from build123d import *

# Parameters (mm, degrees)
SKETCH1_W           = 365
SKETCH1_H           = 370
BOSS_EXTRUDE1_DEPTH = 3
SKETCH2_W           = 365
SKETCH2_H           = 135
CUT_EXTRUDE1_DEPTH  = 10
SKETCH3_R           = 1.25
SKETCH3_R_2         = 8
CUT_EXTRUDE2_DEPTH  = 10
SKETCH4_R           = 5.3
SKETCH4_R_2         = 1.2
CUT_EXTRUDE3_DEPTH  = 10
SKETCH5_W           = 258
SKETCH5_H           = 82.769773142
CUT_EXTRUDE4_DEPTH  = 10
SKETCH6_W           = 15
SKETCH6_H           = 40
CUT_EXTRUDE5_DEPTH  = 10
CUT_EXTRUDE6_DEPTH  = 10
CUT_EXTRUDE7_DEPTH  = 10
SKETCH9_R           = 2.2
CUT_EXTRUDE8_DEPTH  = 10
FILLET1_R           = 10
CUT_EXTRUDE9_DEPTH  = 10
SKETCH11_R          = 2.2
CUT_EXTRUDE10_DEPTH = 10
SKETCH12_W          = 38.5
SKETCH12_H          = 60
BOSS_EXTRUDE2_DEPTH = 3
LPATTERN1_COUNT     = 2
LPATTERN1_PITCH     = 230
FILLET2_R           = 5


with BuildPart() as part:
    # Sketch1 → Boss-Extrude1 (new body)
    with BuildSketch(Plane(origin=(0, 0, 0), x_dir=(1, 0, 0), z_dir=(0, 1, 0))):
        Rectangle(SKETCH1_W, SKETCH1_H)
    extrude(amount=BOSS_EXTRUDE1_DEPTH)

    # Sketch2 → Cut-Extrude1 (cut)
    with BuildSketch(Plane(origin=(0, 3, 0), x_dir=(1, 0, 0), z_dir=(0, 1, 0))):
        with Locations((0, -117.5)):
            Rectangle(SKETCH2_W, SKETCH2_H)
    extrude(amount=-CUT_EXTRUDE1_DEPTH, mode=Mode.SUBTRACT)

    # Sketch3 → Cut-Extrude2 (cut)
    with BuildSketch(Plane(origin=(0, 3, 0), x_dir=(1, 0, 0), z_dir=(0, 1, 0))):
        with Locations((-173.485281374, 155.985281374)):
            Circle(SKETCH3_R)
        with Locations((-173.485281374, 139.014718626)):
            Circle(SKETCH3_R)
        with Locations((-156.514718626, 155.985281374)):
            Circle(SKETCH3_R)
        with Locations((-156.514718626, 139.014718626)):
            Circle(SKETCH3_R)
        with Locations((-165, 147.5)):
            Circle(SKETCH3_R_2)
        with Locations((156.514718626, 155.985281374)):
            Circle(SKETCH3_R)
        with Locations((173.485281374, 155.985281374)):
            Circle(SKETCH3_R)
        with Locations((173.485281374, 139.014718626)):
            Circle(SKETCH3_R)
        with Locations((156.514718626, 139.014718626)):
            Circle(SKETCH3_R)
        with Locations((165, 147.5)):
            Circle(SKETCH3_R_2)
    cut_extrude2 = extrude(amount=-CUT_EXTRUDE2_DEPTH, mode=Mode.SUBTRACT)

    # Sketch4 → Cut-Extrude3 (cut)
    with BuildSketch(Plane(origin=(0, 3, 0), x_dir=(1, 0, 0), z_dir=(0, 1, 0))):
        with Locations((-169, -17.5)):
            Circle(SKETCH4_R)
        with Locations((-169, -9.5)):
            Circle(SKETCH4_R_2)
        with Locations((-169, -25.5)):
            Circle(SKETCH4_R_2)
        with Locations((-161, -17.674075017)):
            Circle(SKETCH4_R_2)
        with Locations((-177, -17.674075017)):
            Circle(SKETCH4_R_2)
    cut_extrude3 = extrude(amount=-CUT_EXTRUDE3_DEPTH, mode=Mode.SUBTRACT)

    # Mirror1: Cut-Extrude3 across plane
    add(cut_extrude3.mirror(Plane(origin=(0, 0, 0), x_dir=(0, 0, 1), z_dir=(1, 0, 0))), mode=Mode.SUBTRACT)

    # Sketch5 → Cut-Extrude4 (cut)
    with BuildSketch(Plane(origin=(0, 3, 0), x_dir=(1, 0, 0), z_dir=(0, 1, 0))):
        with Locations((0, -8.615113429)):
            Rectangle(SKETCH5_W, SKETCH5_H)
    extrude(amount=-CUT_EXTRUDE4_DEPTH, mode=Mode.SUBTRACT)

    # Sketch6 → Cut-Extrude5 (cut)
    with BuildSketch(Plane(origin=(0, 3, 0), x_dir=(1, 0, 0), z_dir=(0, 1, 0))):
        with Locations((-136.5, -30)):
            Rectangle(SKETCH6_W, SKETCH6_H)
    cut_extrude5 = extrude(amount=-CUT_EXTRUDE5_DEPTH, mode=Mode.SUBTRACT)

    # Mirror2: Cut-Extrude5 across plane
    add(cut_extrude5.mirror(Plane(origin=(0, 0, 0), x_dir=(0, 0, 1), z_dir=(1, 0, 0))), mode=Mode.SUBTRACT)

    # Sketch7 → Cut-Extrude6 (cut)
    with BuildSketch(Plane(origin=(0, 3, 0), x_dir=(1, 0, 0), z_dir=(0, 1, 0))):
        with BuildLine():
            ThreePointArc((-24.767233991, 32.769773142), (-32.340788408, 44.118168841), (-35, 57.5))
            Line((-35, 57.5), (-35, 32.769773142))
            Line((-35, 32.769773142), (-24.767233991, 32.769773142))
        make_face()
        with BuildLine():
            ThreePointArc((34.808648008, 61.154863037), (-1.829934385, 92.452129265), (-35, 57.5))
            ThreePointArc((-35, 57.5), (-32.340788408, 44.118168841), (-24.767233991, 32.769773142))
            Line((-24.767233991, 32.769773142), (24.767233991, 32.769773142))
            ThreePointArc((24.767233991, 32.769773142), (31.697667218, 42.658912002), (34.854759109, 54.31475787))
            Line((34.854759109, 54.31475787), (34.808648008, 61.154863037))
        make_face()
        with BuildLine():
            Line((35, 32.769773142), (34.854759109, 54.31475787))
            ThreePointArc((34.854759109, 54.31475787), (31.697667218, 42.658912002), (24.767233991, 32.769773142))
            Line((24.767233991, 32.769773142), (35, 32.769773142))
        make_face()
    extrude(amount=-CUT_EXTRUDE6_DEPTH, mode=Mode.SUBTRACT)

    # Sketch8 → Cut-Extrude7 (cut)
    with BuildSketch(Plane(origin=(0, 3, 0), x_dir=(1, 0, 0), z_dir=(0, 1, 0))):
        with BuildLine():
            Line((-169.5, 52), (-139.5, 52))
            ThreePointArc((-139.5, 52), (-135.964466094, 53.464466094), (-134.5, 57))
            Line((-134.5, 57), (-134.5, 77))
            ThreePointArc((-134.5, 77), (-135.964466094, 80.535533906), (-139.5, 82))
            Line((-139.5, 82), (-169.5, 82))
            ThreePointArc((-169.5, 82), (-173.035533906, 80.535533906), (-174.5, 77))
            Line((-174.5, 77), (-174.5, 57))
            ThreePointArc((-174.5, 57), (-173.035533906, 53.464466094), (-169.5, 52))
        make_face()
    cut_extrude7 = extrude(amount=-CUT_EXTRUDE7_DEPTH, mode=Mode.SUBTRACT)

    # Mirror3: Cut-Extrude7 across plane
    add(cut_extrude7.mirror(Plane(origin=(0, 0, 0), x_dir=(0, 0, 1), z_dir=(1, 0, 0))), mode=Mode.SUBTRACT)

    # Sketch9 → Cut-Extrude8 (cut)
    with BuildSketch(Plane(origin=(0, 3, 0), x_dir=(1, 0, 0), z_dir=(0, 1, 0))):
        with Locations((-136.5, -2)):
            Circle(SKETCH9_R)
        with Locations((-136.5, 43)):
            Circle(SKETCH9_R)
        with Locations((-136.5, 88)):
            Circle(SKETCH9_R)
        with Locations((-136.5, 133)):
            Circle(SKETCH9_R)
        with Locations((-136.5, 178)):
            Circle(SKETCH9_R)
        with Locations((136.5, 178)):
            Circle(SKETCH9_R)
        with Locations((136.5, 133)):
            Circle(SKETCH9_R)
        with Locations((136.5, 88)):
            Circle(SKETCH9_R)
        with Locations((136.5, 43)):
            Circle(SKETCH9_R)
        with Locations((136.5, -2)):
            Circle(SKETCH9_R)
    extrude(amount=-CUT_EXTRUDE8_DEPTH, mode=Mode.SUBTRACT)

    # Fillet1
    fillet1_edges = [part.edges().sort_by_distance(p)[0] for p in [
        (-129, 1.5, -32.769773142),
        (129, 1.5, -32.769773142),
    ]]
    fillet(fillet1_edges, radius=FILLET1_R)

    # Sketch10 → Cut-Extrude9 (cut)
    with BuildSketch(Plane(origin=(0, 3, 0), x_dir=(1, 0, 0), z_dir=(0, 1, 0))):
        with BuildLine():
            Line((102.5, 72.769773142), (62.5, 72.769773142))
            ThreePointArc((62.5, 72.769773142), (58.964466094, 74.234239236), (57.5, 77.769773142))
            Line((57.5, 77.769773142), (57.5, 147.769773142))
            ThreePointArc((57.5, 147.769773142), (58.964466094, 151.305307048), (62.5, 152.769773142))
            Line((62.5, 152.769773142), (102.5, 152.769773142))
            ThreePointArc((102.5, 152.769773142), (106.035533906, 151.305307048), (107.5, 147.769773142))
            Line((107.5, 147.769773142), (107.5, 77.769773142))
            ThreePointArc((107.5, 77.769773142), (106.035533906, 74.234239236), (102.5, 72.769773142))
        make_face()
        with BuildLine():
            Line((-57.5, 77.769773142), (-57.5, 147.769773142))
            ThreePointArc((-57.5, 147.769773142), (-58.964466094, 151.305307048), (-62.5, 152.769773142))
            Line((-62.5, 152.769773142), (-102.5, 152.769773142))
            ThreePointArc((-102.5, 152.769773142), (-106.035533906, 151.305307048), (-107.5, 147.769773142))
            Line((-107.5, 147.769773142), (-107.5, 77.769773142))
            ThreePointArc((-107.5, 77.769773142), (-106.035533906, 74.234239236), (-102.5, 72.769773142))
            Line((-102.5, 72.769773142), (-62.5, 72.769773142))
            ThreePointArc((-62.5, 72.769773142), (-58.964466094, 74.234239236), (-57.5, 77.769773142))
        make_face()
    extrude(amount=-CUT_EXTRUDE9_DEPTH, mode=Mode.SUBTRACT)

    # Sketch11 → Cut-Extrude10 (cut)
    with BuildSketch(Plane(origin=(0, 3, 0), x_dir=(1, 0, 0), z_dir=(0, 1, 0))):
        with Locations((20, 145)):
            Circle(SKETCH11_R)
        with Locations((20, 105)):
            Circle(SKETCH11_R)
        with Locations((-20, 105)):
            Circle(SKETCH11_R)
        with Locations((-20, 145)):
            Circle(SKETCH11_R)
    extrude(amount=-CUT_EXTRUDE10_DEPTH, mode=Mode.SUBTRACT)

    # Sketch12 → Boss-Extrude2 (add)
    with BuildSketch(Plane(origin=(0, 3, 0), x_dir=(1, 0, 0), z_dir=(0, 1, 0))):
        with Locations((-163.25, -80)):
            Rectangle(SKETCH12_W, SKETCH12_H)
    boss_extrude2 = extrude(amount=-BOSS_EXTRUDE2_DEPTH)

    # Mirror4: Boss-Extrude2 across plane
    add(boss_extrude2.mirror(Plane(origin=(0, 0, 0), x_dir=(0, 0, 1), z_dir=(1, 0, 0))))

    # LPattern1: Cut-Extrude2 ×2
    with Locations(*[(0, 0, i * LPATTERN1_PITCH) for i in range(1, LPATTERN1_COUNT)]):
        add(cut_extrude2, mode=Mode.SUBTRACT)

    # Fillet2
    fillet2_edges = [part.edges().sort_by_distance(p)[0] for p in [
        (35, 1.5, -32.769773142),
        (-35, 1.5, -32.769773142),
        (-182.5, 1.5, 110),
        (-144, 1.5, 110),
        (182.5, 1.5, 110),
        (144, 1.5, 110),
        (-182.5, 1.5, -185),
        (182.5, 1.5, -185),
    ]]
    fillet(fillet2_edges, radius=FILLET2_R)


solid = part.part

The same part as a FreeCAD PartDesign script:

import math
import FreeCAD as App
import Part
import Sketcher
Q = App.Units.Quantity


def edges_at(feature, points):
    """Names of the edges that pass closest to the given points."""
    edges = feature.Shape.Edges
    near = lambda p: min(range(len(edges)), key=lambda i: edges[i].distToShape(Part.Vertex(*p))[0])
    return sorted({f"Edge{near(p) + 1}" for p in points})


def add_polygon(sketch, points):
    """Adds a closed chain of lines whose ends are joined by coincident constraints."""
    first, n = sketch.GeometryCount, len(points)
    for a, b in zip(points, points[1:] + points[:1]):
        sketch.addGeometry(Part.LineSegment(App.Vector(*a, 0), App.Vector(*b, 0)), False)
    for i in range(n):
        sketch.addConstraint(Sketcher.Constraint("Coincident", first + i, 2, first + (i + 1) % n, 1))

doc = App.newDocument("Part")
body = doc.addObject("PartDesign::Body", "Body")

# Sketch on XZ plane
sketch1 = body.newObject("Sketcher::SketchObject", "Sketch")
sketch1.AttachmentSupport = (doc.getObject("XZ_Plane"), [""])
sketch1.MapMode = "FlatFace"
add_polygon(sketch1, [(-182, -185), (-182, 185), (182, 185), (182, -185)])  # lines 0-3
sketch1.addConstraint(Sketcher.Constraint("Vertical", 0))
sketch1.addConstraint(Sketcher.Constraint("Horizontal", 1))
sketch1.addConstraint(Sketcher.Constraint("Vertical", 2))
sketch1.addConstraint(Sketcher.Constraint("Horizontal", 3))
sketch1.addConstraint(Sketcher.Constraint("Symmetric", 0, 2, 2, 2, -1, 1))
sketch1.addConstraint(Sketcher.Constraint("DistanceX", 1, 1, 1, 2, Q("365 mm")))
sketch1.addConstraint(Sketcher.Constraint("DistanceY", 0, 1, 0, 2, Q("370 mm")))
pad1 = body.newObject("PartDesign::Pad", "Pad")
pad1.Profile = sketch1
pad1.Length = 3
pad1.Reversed = True

# Sketch on XZ plane
sketch2 = body.newObject("Sketcher::SketchObject", "Sketch001")
sketch2.AttachmentSupport = (doc.getObject("XZ_Plane"), [""])
sketch2.MapMode = "FlatFace"
sketch2.AttachmentOffset = App.Placement(App.Vector(0, 0, -3), App.Rotation())
add_polygon(sketch2, [(-182, 50), (-182, 185), (182, 185), (182, 50)])  # lines 0-3
sketch2.addConstraint(Sketcher.Constraint("Vertical", 0))
sketch2.addConstraint(Sketcher.Constraint("Horizontal", 1))
sketch2.addConstraint(Sketcher.Constraint("Vertical", 2))
sketch2.addConstraint(Sketcher.Constraint("Horizontal", 3))
sketch2.addConstraint(Sketcher.Constraint("DistanceX", 1, 1, 1, 2, Q("365 mm")))
sketch2.addConstraint(Sketcher.Constraint("DistanceY", 0, 1, 0, 2, Q("135 mm")))
sketch2.addConstraint(Sketcher.Constraint("DistanceY", -1, 1, 0, 2, Q("185 mm")))
sketch2.addConstraint(Sketcher.Constraint("DistanceX", 0, 2, -1, 1, Q("182.5 mm")))
pocket1 = body.newObject("PartDesign::Pocket", "Pocket")
pocket1.Profile = sketch2
pocket1.Length = 10
pocket1.Reversed = True

# Sketch on XZ plane
sketch3 = body.newObject("Sketcher::SketchObject", "Sketch002")
sketch3.AttachmentSupport = (doc.getObject("XZ_Plane"), [""])
sketch3.MapMode = "FlatFace"
sketch3.AttachmentOffset = App.Placement(App.Vector(0, 0, -3), App.Rotation())
sketch3.addGeometry(Part.Circle(App.Vector(-173.5, -156, 0), App.Vector(0, 0, 1), 1.2), False)
sketch3.addGeometry(Part.Circle(App.Vector(-173.5, -139, 0), App.Vector(0, 0, 1), 1.2), False)
sketch3.addGeometry(Part.Circle(App.Vector(-156.5, -156, 0), App.Vector(0, 0, 1), 1.2), False)
sketch3.addGeometry(Part.Circle(App.Vector(-156.5, -139, 0), App.Vector(0, 0, 1), 1.2), False)
sketch3.addGeometry(Part.Circle(App.Vector(-165, -147.5, 0), App.Vector(0, 0, 1), 8), False)
sketch3.addGeometry(Part.Circle(App.Vector(156.5, -156, 0), App.Vector(0, 0, 1), 1.2), False)
sketch3.addGeometry(Part.Circle(App.Vector(173.5, -156, 0), App.Vector(0, 0, 1), 1.2), False)
sketch3.addGeometry(Part.Circle(App.Vector(173.5, -139, 0), App.Vector(0, 0, 1), 1.2), False)
sketch3.addGeometry(Part.Circle(App.Vector(156.5, -139, 0), App.Vector(0, 0, 1), 1.2), False)
sketch3.addGeometry(Part.Circle(App.Vector(165, -147.5, 0), App.Vector(0, 0, 1), 8), False)
sketch3.addConstraint(Sketcher.Constraint("Equal", 0, 1))
sketch3.addConstraint(Sketcher.Constraint("Equal", 1, 2))
sketch3.addConstraint(Sketcher.Constraint("Equal", 2, 3))
sketch3.addConstraint(Sketcher.Constraint("Equal", 3, 5))
sketch3.addConstraint(Sketcher.Constraint("Equal", 5, 6))
sketch3.addConstraint(Sketcher.Constraint("Equal", 6, 7))
sketch3.addConstraint(Sketcher.Constraint("Equal", 7, 8))
sketch3.addConstraint(Sketcher.Constraint("Equal", 4, 9))
sketch3.addConstraint(Sketcher.Constraint("Symmetric", 2, 3, 5, 3, -2))
sketch3.addConstraint(Sketcher.Constraint("Symmetric", 0, 3, 6, 3, -2))
sketch3.addConstraint(Sketcher.Constraint("Symmetric", 1, 3, 7, 3, -2))
sketch3.addConstraint(Sketcher.Constraint("Symmetric", 3, 3, 8, 3, -2))
sketch3.addConstraint(Sketcher.Constraint("Symmetric", 4, 3, 9, 3, -2))
sketch3.addConstraint(Sketcher.Constraint("Horizontal", 0, 3, 2, 3))
sketch3.addConstraint(Sketcher.Constraint("Horizontal", 1, 3, 3, 3))
sketch3.addConstraint(Sketcher.Constraint("Vertical", 0, 3, 1, 3))
sketch3.addConstraint(Sketcher.Constraint("Vertical", 2, 3, 3, 3))
sketch3.addConstraint(Sketcher.Constraint("Diameter", 4, Q("16 mm")))
sketch3.addConstraint(Sketcher.Constraint("Diameter", 0, Q("2.5 mm")))
sketch3.addConstraint(Sketcher.Constraint("DistanceX", 4, 3, -1, 1, Q("165 mm")))
sketch3.addConstraint(Sketcher.Constraint("DistanceX", 0, 3, 5, 3, Q("330 mm")))
sketch3.addConstraint(Sketcher.Constraint("DistanceY", 4, 3, -1, 1, Q("147.5 mm")))
sketch3.addConstraint(Sketcher.Constraint("DistanceX", 0, 3, -1, 1, Q("173.485281 mm")))
sketch3.addConstraint(Sketcher.Constraint("DistanceY", 0, 3, -1, 1, Q("155.985281 mm")))
sketch3.addConstraint(Sketcher.Constraint("DistanceY", 1, 3, -1, 1, Q("139.014719 mm")))
pocket2 = body.newObject("PartDesign::Pocket", "Pocket001")
pocket2.Profile = sketch3
pocket2.Length = 10
pocket2.Reversed = True

# Sketch on XZ plane
sketch4 = body.newObject("Sketcher::SketchObject", "Sketch003")
sketch4.AttachmentSupport = (doc.getObject("XZ_Plane"), [""])
sketch4.MapMode = "FlatFace"
sketch4.AttachmentOffset = App.Placement(App.Vector(0, 0, -3), App.Rotation())
sketch4.addGeometry(Part.Circle(App.Vector(-169, 17.5, 0), App.Vector(0, 0, 1), 5.3), False)
sketch4.addGeometry(Part.Circle(App.Vector(-169, 9.5, 0), App.Vector(0, 0, 1), 1.2), False)
sketch4.addGeometry(Part.Circle(App.Vector(-169, 25.5, 0), App.Vector(0, 0, 1), 1.2), False)
sketch4.addGeometry(Part.Circle(App.Vector(-161, 17.7, 0), App.Vector(0, 0, 1), 1.2), False)
sketch4.addGeometry(Part.Circle(App.Vector(-177, 17.7, 0), App.Vector(0, 0, 1), 1.2), False)
sketch4.addConstraint(Sketcher.Constraint("Equal", 1, 2))
sketch4.addConstraint(Sketcher.Constraint("Equal", 2, 3))
sketch4.addConstraint(Sketcher.Constraint("Equal", 3, 4))
sketch4.addConstraint(Sketcher.Constraint("Horizontal", 3, 3, 4, 3))
sketch4.addConstraint(Sketcher.Constraint("Vertical", 0, 3, 1, 3))
sketch4.addConstraint(Sketcher.Constraint("Vertical", 1, 3, 2, 3))
sketch4.addConstraint(Sketcher.Constraint("Diameter", 0, Q("10.6 mm")))
sketch4.addConstraint(Sketcher.Constraint("Diameter", 1, Q("2.4 mm")))
sketch4.addConstraint(Sketcher.Constraint("DistanceX", 0, 3, -1, 1, Q("169 mm")))
sketch4.addConstraint(Sketcher.Constraint("DistanceX", 3, 3, -1, 1, Q("161 mm")))
sketch4.addConstraint(Sketcher.Constraint("DistanceX", 4, 3, -1, 1, Q("177 mm")))
sketch4.addConstraint(Sketcher.Constraint("DistanceY", 1, 3, 0, 3, Q("8 mm")))
sketch4.addConstraint(Sketcher.Constraint("DistanceY", 0, 3, 2, 3, Q("8 mm")))
sketch4.addConstraint(Sketcher.Constraint("DistanceY", -1, 1, 0, 3, Q("17.5 mm")))
sketch4.addConstraint(Sketcher.Constraint("DistanceY", -1, 1, 3, 3, Q("17.674075 mm")))
pocket3 = body.newObject("PartDesign::Pocket", "Pocket002")
pocket3.Profile = sketch4
pocket3.Length = 10
pocket3.Reversed = True
doc.recompute()

mirrored = body.newObject("PartDesign::Mirrored", "Mirrored")
mirrored.Originals = [pocket3]
mirrored.MirrorPlane = (doc.getObject("YZ_Plane"), [""])
body.Tip = mirrored

# Sketch on XZ plane
sketch5 = body.newObject("Sketcher::SketchObject", "Sketch004")
sketch5.AttachmentSupport = (doc.getObject("XZ_Plane"), [""])
sketch5.MapMode = "FlatFace"
sketch5.AttachmentOffset = App.Placement(App.Vector(0, 0, -3), App.Rotation())
add_polygon(sketch5, [(-129, -33), (-129, 50), (129, 50), (129, -33)])  # lines 0-3
sketch5.addConstraint(Sketcher.Constraint("Vertical", 0))
sketch5.addConstraint(Sketcher.Constraint("Horizontal", 1))
sketch5.addConstraint(Sketcher.Constraint("Vertical", 2))
sketch5.addConstraint(Sketcher.Constraint("Horizontal", 3))
sketch5.addConstraint(Sketcher.Constraint("DistanceX", 1, 1, 1, 2, Q("258 mm")))
sketch5.addConstraint(Sketcher.Constraint("DistanceX", 0, 2, -1, 1, Q("129 mm")))
sketch5.addConstraint(Sketcher.Constraint("DistanceY", -1, 1, 0, 2, Q("50 mm")))
sketch5.addConstraint(Sketcher.Constraint("DistanceY", 0, 1, 0, 2, Q("82.769773 mm")))
pocket4 = body.newObject("PartDesign::Pocket", "Pocket003")
pocket4.Profile = sketch5
pocket4.Length = 10
pocket4.Reversed = True

# Sketch on XZ plane
sketch6 = body.newObject("Sketcher::SketchObject", "Sketch005")
sketch6.AttachmentSupport = (doc.getObject("XZ_Plane"), [""])
sketch6.MapMode = "FlatFace"
sketch6.AttachmentOffset = App.Placement(App.Vector(0, 0, -3), App.Rotation())
add_polygon(sketch6, [(-144, 10), (-144, 50), (-129, 50), (-129, 10)])  # lines 0-3
sketch6.addConstraint(Sketcher.Constraint("Vertical", 0))
sketch6.addConstraint(Sketcher.Constraint("Horizontal", 1))
sketch6.addConstraint(Sketcher.Constraint("Vertical", 2))
sketch6.addConstraint(Sketcher.Constraint("Horizontal", 3))
sketch6.addConstraint(Sketcher.Constraint("DistanceX", 1, 1, 1, 2, Q("15 mm")))
sketch6.addConstraint(Sketcher.Constraint("DistanceY", 0, 1, 0, 2, Q("40 mm")))
sketch6.addConstraint(Sketcher.Constraint("DistanceX", 0, 2, -1, 1, Q("144 mm")))
sketch6.addConstraint(Sketcher.Constraint("DistanceY", -1, 1, 0, 2, Q("50 mm")))
pocket5 = body.newObject("PartDesign::Pocket", "Pocket004")
pocket5.Profile = sketch6
pocket5.Length = 10
pocket5.Reversed = True
doc.recompute()

mirrored2 = body.newObject("PartDesign::Mirrored", "Mirrored001")
mirrored2.Originals = [pocket5]
mirrored2.MirrorPlane = (doc.getObject("YZ_Plane"), [""])
body.Tip = mirrored2

# Sketch on XZ plane
sketch7 = body.newObject("Sketcher::SketchObject", "Sketch006")
sketch7.AttachmentSupport = (doc.getObject("XZ_Plane"), [""])
sketch7.MapMode = "FlatFace"
sketch7.AttachmentOffset = App.Placement(App.Vector(0, 0, -3), App.Rotation())
sketch7.addGeometry(Part.LineSegment(App.Vector(-35, -58, 0), App.Vector(-35, -33, 0)), False)
sketch7.addGeometry(Part.LineSegment(App.Vector(-35, -33, 0), App.Vector(35, -33, 0)), False)
sketch7.addGeometry(Part.LineSegment(App.Vector(35, -33, 0), App.Vector(35, -54, 0)), False)
sketch7.addGeometry(Part.LineSegment(App.Vector(35, -54, 0), App.Vector(35, -61, 0)), False)
sketch7.addGeometry(Part.ArcOfCircle(Part.Circle(App.Vector(0, -58, 0), App.Vector(0, 0, 1), 35), math.radians(180), math.radians(354)), False)
sketch7.addConstraint(Sketcher.Constraint("Coincident", 0, 2, 1, 1))
sketch7.addConstraint(Sketcher.Constraint("Coincident", 1, 2, 2, 1))
sketch7.addConstraint(Sketcher.Constraint("Coincident", 2, 2, 3, 1))
sketch7.addConstraint(Sketcher.Constraint("Coincident", 3, 2, 4, 2))
sketch7.addConstraint(Sketcher.Constraint("Tangent", 4, 1, 0, 1))
sketch7.addConstraint(Sketcher.Constraint("Vertical", 0))
sketch7.addConstraint(Sketcher.Constraint("Horizontal", 1))
sketch7.addConstraint(Sketcher.Constraint("PointOnObject", 4, 3, -2))
sketch7.addConstraint(Sketcher.Constraint("Parallel", 2, 3))
sketch7.addConstraint(Sketcher.Constraint("Radius", 4, Q("35 mm")))
sketch7.addConstraint(Sketcher.Constraint("DistanceX", 1, 1, 1, 2, Q("70 mm")))
sketch7.addConstraint(Sketcher.Constraint("DistanceY", 4, 3, -1, 1, Q("57.5 mm")))
sketch7.addConstraint(Sketcher.Constraint("Distance", 3, Q("6.840261 mm")))
sketch7.addConstraint(Sketcher.Constraint("DistanceY", 0, 1, 0, 2, Q("24.730227 mm")))
sketch7.addConstraint(Sketcher.Constraint("DistanceX", -1, 1, 2, 2, Q("34.854759 mm")))
pocket6 = body.newObject("PartDesign::Pocket", "Pocket005")
pocket6.Profile = sketch7
pocket6.Length = 10
pocket6.Reversed = True

# Sketch on XZ plane
sketch8 = body.newObject("Sketcher::SketchObject", "Sketch007")
sketch8.AttachmentSupport = (doc.getObject("XZ_Plane"), [""])
sketch8.MapMode = "FlatFace"
sketch8.AttachmentOffset = App.Placement(App.Vector(0, 0, -3), App.Rotation())
sketch8.addGeometry(Part.LineSegment(App.Vector(-170, -52, 0), App.Vector(-140, -52, 0)), False)
sketch8.addGeometry(Part.ArcOfCircle(Part.Circle(App.Vector(-140, -57, 0), App.Vector(0, 0, 1), 5), math.radians(0), math.radians(90)), False)
sketch8.addGeometry(Part.LineSegment(App.Vector(-134, -57, 0), App.Vector(-134, -77, 0)), False)
sketch8.addGeometry(Part.ArcOfCircle(Part.Circle(App.Vector(-140, -77, 0), App.Vector(0, 0, 1), 5), math.radians(-90), math.radians(0)), False)
sketch8.addGeometry(Part.LineSegment(App.Vector(-140, -82, 0), App.Vector(-170, -82, 0)), False)
sketch8.addGeometry(Part.ArcOfCircle(Part.Circle(App.Vector(-170, -77, 0), App.Vector(0, 0, 1), 5), math.radians(180), math.radians(270)), False)
sketch8.addGeometry(Part.LineSegment(App.Vector(-174, -77, 0), App.Vector(-174, -57, 0)), False)
sketch8.addGeometry(Part.ArcOfCircle(Part.Circle(App.Vector(-170, -57, 0), App.Vector(0, 0, 1), 5), math.radians(90), math.radians(180)), False)
sketch8.addConstraint(Sketcher.Constraint("Tangent", 0, 2, 1, 2))
sketch8.addConstraint(Sketcher.Constraint("Tangent", 1, 1, 2, 1))
sketch8.addConstraint(Sketcher.Constraint("Tangent", 2, 2, 3, 2))
sketch8.addConstraint(Sketcher.Constraint("Tangent", 3, 1, 4, 1))
sketch8.addConstraint(Sketcher.Constraint("Tangent", 4, 2, 5, 2))
sketch8.addConstraint(Sketcher.Constraint("Tangent", 5, 1, 6, 1))
sketch8.addConstraint(Sketcher.Constraint("Tangent", 6, 2, 7, 2))
sketch8.addConstraint(Sketcher.Constraint("Tangent", 7, 1, 0, 1))
sketch8.addConstraint(Sketcher.Constraint("Horizontal", 0))
sketch8.addConstraint(Sketcher.Constraint("Vertical", 2))
sketch8.addConstraint(Sketcher.Constraint("Horizontal", 4))
sketch8.addConstraint(Sketcher.Constraint("Vertical", 6))
sketch8.addConstraint(Sketcher.Constraint("Equal", 1, 3))
sketch8.addConstraint(Sketcher.Constraint("Equal", 3, 5))
sketch8.addConstraint(Sketcher.Constraint("Equal", 5, 7))
sketch8.addConstraint(Sketcher.Constraint("Radius", 1, Q("5 mm")))
sketch8.addConstraint(Sketcher.Constraint("DistanceX", 0, 1, 0, 2, Q("30 mm")))
sketch8.addConstraint(Sketcher.Constraint("DistanceY", 2, 2, 2, 1, Q("20 mm")))
sketch8.addConstraint(Sketcher.Constraint("DistanceY", 1, 3, -1, 1, Q("57 mm")))
sketch8.addConstraint(Sketcher.Constraint("DistanceX", 1, 3, -1, 1, Q("139.5 mm")))
pocket7 = body.newObject("PartDesign::Pocket", "Pocket006")
pocket7.Profile = sketch8
pocket7.Length = 10
pocket7.Reversed = True
doc.recompute()

mirrored3 = body.newObject("PartDesign::Mirrored", "Mirrored002")
mirrored3.Originals = [pocket7]
mirrored3.MirrorPlane = (doc.getObject("YZ_Plane"), [""])
body.Tip = mirrored3

# Sketch on XZ plane
sketch9 = body.newObject("Sketcher::SketchObject", "Sketch008")
sketch9.AttachmentSupport = (doc.getObject("XZ_Plane"), [""])
sketch9.MapMode = "FlatFace"
sketch9.AttachmentOffset = App.Placement(App.Vector(0, 0, -3), App.Rotation())
sketch9.addGeometry(Part.Circle(App.Vector(-136.5, 2, 0), App.Vector(0, 0, 1), 2.2), False)
sketch9.addGeometry(Part.Circle(App.Vector(-136.5, -43, 0), App.Vector(0, 0, 1), 2.2), False)
sketch9.addGeometry(Part.Circle(App.Vector(-136.5, -88, 0), App.Vector(0, 0, 1), 2.2), False)
sketch9.addGeometry(Part.Circle(App.Vector(-136.5, -133, 0), App.Vector(0, 0, 1), 2.2), False)
sketch9.addGeometry(Part.Circle(App.Vector(-136.5, -178, 0), App.Vector(0, 0, 1), 2.2), False)
sketch9.addGeometry(Part.Circle(App.Vector(136.5, -178, 0), App.Vector(0, 0, 1), 2.2), False)
sketch9.addGeometry(Part.Circle(App.Vector(136.5, -133, 0), App.Vector(0, 0, 1), 2.2), False)
sketch9.addGeometry(Part.Circle(App.Vector(136.5, -88, 0), App.Vector(0, 0, 1), 2.2), False)
sketch9.addGeometry(Part.Circle(App.Vector(136.5, -43, 0), App.Vector(0, 0, 1), 2.2), False)
sketch9.addGeometry(Part.Circle(App.Vector(136.5, 2, 0), App.Vector(0, 0, 1), 2.2), False)
sketch9.addConstraint(Sketcher.Constraint("Equal", 0, 1))
sketch9.addConstraint(Sketcher.Constraint("Equal", 1, 2))
sketch9.addConstraint(Sketcher.Constraint("Equal", 2, 3))
sketch9.addConstraint(Sketcher.Constraint("Equal", 3, 4))
sketch9.addConstraint(Sketcher.Constraint("Equal", 4, 5))
sketch9.addConstraint(Sketcher.Constraint("Equal", 5, 6))
sketch9.addConstraint(Sketcher.Constraint("Equal", 6, 7))
sketch9.addConstraint(Sketcher.Constraint("Equal", 7, 8))
sketch9.addConstraint(Sketcher.Constraint("Equal", 8, 9))
sketch9.addConstraint(Sketcher.Constraint("Symmetric", 4, 3, 5, 3, -2))
sketch9.addConstraint(Sketcher.Constraint("Symmetric", 3, 3, 6, 3, -2))
sketch9.addConstraint(Sketcher.Constraint("Symmetric", 2, 3, 7, 3, -2))
sketch9.addConstraint(Sketcher.Constraint("Symmetric", 1, 3, 8, 3, -2))
sketch9.addConstraint(Sketcher.Constraint("Symmetric", 0, 3, 9, 3, -2))
sketch9.addConstraint(Sketcher.Constraint("Vertical", 0, 3, 1, 3))
sketch9.addConstraint(Sketcher.Constraint("Vertical", 1, 3, 2, 3))
sketch9.addConstraint(Sketcher.Constraint("Vertical", 2, 3, 3, 3))
sketch9.addConstraint(Sketcher.Constraint("Vertical", 3, 3, 4, 3))
sketch9.addConstraint(Sketcher.Constraint("Diameter", 0, Q("4.4 mm")))
sketch9.addConstraint(Sketcher.Constraint("DistanceY", -1, 1, 0, 3, Q("2 mm")))
sketch9.addConstraint(Sketcher.Constraint("DistanceY", 1, 3, -1, 1, Q("43 mm")))
sketch9.addConstraint(Sketcher.Constraint("DistanceY", 2, 3, -1, 1, Q("88 mm")))
sketch9.addConstraint(Sketcher.Constraint("DistanceY", 3, 3, -1, 1, Q("133 mm")))
sketch9.addConstraint(Sketcher.Constraint("DistanceY", 4, 3, -1, 1, Q("178 mm")))
sketch9.addConstraint(Sketcher.Constraint("DistanceX", 4, 3, 5, 3, Q("273 mm")))
pocket8 = body.newObject("PartDesign::Pocket", "Pocket007")
pocket8.Profile = sketch9
pocket8.Length = 10
pocket8.Reversed = True
doc.recompute()

fillet = body.newObject("PartDesign::Fillet", "Fillet")
fillet.Base = (pocket8, edges_at(pocket8, [(-129, 1.5, -32.77), (129, 1.5, -32.77)]))
fillet.Radius = 10

# Sketch on XZ plane
sketch10 = body.newObject("Sketcher::SketchObject", "Sketch009")
sketch10.AttachmentSupport = (doc.getObject("XZ_Plane"), [""])
sketch10.MapMode = "FlatFace"
sketch10.AttachmentOffset = App.Placement(App.Vector(0, 0, -3), App.Rotation())
sketch10.addGeometry(Part.LineSegment(App.Vector(62, -73, 0), App.Vector(102, -73, 0)), False)
sketch10.addGeometry(Part.ArcOfCircle(Part.Circle(App.Vector(102, -78, 0), App.Vector(0, 0, 1), 5), math.radians(0), math.radians(90)), False)
sketch10.addGeometry(Part.LineSegment(App.Vector(108, -78, 0), App.Vector(108, -148, 0)), False)
sketch10.addGeometry(Part.ArcOfCircle(Part.Circle(App.Vector(102, -148, 0), App.Vector(0, 0, 1), 5), math.radians(-90), math.radians(0)), False)
sketch10.addGeometry(Part.LineSegment(App.Vector(102, -153, 0), App.Vector(62, -153, 0)), False)
sketch10.addGeometry(Part.ArcOfCircle(Part.Circle(App.Vector(62, -148, 0), App.Vector(0, 0, 1), 5), math.radians(180), math.radians(270)), False)
sketch10.addGeometry(Part.LineSegment(App.Vector(58, -148, 0), App.Vector(58, -78, 0)), False)
sketch10.addGeometry(Part.ArcOfCircle(Part.Circle(App.Vector(62, -78, 0), App.Vector(0, 0, 1), 5), math.radians(90), math.radians(180)), False)
sketch10.addGeometry(Part.LineSegment(App.Vector(-58, -78, 0), App.Vector(-58, -148, 0)), False)
sketch10.addGeometry(Part.ArcOfCircle(Part.Circle(App.Vector(-62, -148, 0), App.Vector(0, 0, 1), 5), math.radians(-90), math.radians(0)), False)
sketch10.addGeometry(Part.LineSegment(App.Vector(-62, -153, 0), App.Vector(-102, -153, 0)), False)
sketch10.addGeometry(Part.ArcOfCircle(Part.Circle(App.Vector(-102, -148, 0), App.Vector(0, 0, 1), 5), math.radians(180), math.radians(270)), False)
sketch10.addGeometry(Part.LineSegment(App.Vector(-108, -148, 0), App.Vector(-108, -78, 0)), False)
sketch10.addGeometry(Part.ArcOfCircle(Part.Circle(App.Vector(-102, -78, 0), App.Vector(0, 0, 1), 5), math.radians(90), math.radians(180)), False)
sketch10.addGeometry(Part.LineSegment(App.Vector(-102, -73, 0), App.Vector(-62, -73, 0)), False)
sketch10.addGeometry(Part.ArcOfCircle(Part.Circle(App.Vector(-62, -78, 0), App.Vector(0, 0, 1), 5), math.radians(0), math.radians(90)), False)
sketch10.addConstraint(Sketcher.Constraint("Tangent", 0, 2, 1, 2))
sketch10.addConstraint(Sketcher.Constraint("Tangent", 1, 1, 2, 1))
sketch10.addConstraint(Sketcher.Constraint("Tangent", 2, 2, 3, 2))
sketch10.addConstraint(Sketcher.Constraint("Tangent", 3, 1, 4, 1))
sketch10.addConstraint(Sketcher.Constraint("Tangent", 4, 2, 5, 2))
sketch10.addConstraint(Sketcher.Constraint("Tangent", 5, 1, 6, 1))
sketch10.addConstraint(Sketcher.Constraint("Tangent", 6, 2, 7, 2))
sketch10.addConstraint(Sketcher.Constraint("Tangent", 7, 1, 0, 1))
sketch10.addConstraint(Sketcher.Constraint("Tangent", 8, 2, 9, 2))
sketch10.addConstraint(Sketcher.Constraint("Tangent", 9, 1, 10, 1))
sketch10.addConstraint(Sketcher.Constraint("Tangent", 10, 2, 11, 2))
sketch10.addConstraint(Sketcher.Constraint("Tangent", 11, 1, 12, 1))
sketch10.addConstraint(Sketcher.Constraint("Tangent", 12, 2, 13, 2))
sketch10.addConstraint(Sketcher.Constraint("Tangent", 13, 1, 14, 1))
sketch10.addConstraint(Sketcher.Constraint("Tangent", 14, 2, 15, 2))
sketch10.addConstraint(Sketcher.Constraint("Tangent", 15, 1, 8, 1))
sketch10.addConstraint(Sketcher.Constraint("Horizontal", 0))
sketch10.addConstraint(Sketcher.Constraint("Vertical", 2))
sketch10.addConstraint(Sketcher.Constraint("Horizontal", 4))
sketch10.addConstraint(Sketcher.Constraint("Vertical", 6))
sketch10.addConstraint(Sketcher.Constraint("Vertical", 8))
sketch10.addConstraint(Sketcher.Constraint("Horizontal", 10))
sketch10.addConstraint(Sketcher.Constraint("Vertical", 12))
sketch10.addConstraint(Sketcher.Constraint("Horizontal", 14))
sketch10.addConstraint(Sketcher.Constraint("Equal", 1, 3))
sketch10.addConstraint(Sketcher.Constraint("Equal", 3, 5))
sketch10.addConstraint(Sketcher.Constraint("Equal", 5, 7))
sketch10.addConstraint(Sketcher.Constraint("Equal", 7, 9))
sketch10.addConstraint(Sketcher.Constraint("Equal", 9, 11))
sketch10.addConstraint(Sketcher.Constraint("Equal", 11, 13))
sketch10.addConstraint(Sketcher.Constraint("Equal", 13, 15))
sketch10.addConstraint(Sketcher.Constraint("Symmetric", 5, 3, 9, 3, -2))
sketch10.addConstraint(Sketcher.Constraint("Symmetric", 1, 3, 13, 3, -2))
sketch10.addConstraint(Sketcher.Constraint("Radius", 1, Q("5 mm")))
sketch10.addConstraint(Sketcher.Constraint("DistanceX", 0, 1, 0, 2, Q("40 mm")))
sketch10.addConstraint(Sketcher.Constraint("DistanceY", 2, 2, 2, 1, Q("70 mm")))
sketch10.addConstraint(Sketcher.Constraint("DistanceX", 9, 3, 5, 3, Q("125 mm")))
sketch10.addConstraint(Sketcher.Constraint("DistanceY", 1, 3, -1, 1, Q("77.769773 mm")))
pocket9 = body.newObject("PartDesign::Pocket", "Pocket008")
pocket9.Profile = sketch10
pocket9.Length = 10
pocket9.Reversed = True

# Sketch on XZ plane
sketch11 = body.newObject("Sketcher::SketchObject", "Sketch010")
sketch11.AttachmentSupport = (doc.getObject("XZ_Plane"), [""])
sketch11.MapMode = "FlatFace"
sketch11.AttachmentOffset = App.Placement(App.Vector(0, 0, -3), App.Rotation())
sketch11.addGeometry(Part.Circle(App.Vector(20, -145, 0), App.Vector(0, 0, 1), 2.2), False)
sketch11.addGeometry(Part.Circle(App.Vector(20, -105, 0), App.Vector(0, 0, 1), 2.2), False)
sketch11.addGeometry(Part.Circle(App.Vector(-20, -105, 0), App.Vector(0, 0, 1), 2.2), False)
sketch11.addGeometry(Part.Circle(App.Vector(-20, -145, 0), App.Vector(0, 0, 1), 2.2), False)
sketch11.addConstraint(Sketcher.Constraint("Equal", 0, 1))
sketch11.addConstraint(Sketcher.Constraint("Equal", 1, 2))
sketch11.addConstraint(Sketcher.Constraint("Equal", 2, 3))
sketch11.addConstraint(Sketcher.Constraint("Symmetric", 1, 3, 2, 3, -2))
sketch11.addConstraint(Sketcher.Constraint("Symmetric", 0, 3, 3, 3, -2))
sketch11.addConstraint(Sketcher.Constraint("Vertical", 0, 3, 1, 3))
sketch11.addConstraint(Sketcher.Constraint("Diameter", 0, Q("4.4 mm")))
sketch11.addConstraint(Sketcher.Constraint("DistanceX", -1, 1, 0, 3, Q("20 mm")))
sketch11.addConstraint(Sketcher.Constraint("DistanceY", 0, 3, -1, 1, Q("145 mm")))
sketch11.addConstraint(Sketcher.Constraint("DistanceY", 1, 3, -1, 1, Q("105 mm")))
pocket10 = body.newObject("PartDesign::Pocket", "Pocket009")
pocket10.Profile = sketch11
pocket10.Length = 10
pocket10.Reversed = True

# Sketch on XZ plane
sketch12 = body.newObject("Sketcher::SketchObject", "Sketch011")
sketch12.AttachmentSupport = (doc.getObject("XZ_Plane"), [""])
sketch12.MapMode = "FlatFace"
sketch12.AttachmentOffset = App.Placement(App.Vector(0, 0, -3), App.Rotation())
add_polygon(sketch12, [(-182, 50), (-182, 110), (-144, 110), (-144, 50)])  # lines 0-3
sketch12.addConstraint(Sketcher.Constraint("Vertical", 0))
sketch12.addConstraint(Sketcher.Constraint("Horizontal", 1))
sketch12.addConstraint(Sketcher.Constraint("Vertical", 2))
sketch12.addConstraint(Sketcher.Constraint("Horizontal", 3))
sketch12.addConstraint(Sketcher.Constraint("DistanceY", 0, 1, 0, 2, Q("60 mm")))
sketch12.addConstraint(Sketcher.Constraint("DistanceX", 1, 1, 1, 2, Q("38.5 mm")))
sketch12.addConstraint(Sketcher.Constraint("DistanceY", -1, 1, 0, 2, Q("110 mm")))
sketch12.addConstraint(Sketcher.Constraint("DistanceX", 1, 2, -1, 1, Q("144 mm")))
pad2 = body.newObject("PartDesign::Pad", "Pad001")
pad2.Profile = sketch12
pad2.Length = 3
doc.recompute()

mirrored4 = body.newObject("PartDesign::Mirrored", "Mirrored003")
mirrored4.Originals = [pad2]
mirrored4.MirrorPlane = (doc.getObject("YZ_Plane"), [""])
body.Tip = mirrored4
doc.recompute()

linearpattern = body.newObject("PartDesign::LinearPattern", "LinearPattern")
linearpattern.Originals = [pocket2]
linearpattern.Direction = (doc.getObject("Z_Axis"), [""])
linearpattern.Mode = "offset"
linearpattern.Offset = 230
linearpattern.Occurrences = 2
body.Tip = linearpattern
doc.recompute()

fillet2 = body.newObject("PartDesign::Fillet", "Fillet001")
fillet2.Base = (linearpattern, edges_at(linearpattern, [
    (35, 1.5, -32.77),
    (-35, 1.5, -32.77),
    (-182.5, 1.5, 110),
    (-144, 1.5, 110),
    (182.5, 1.5, 110),
    (144, 1.5, 110),
    (-182.5, 1.5, -185),
    (182.5, 1.5, -185),
]))
fillet2.Radius = 5

doc.recompute()
